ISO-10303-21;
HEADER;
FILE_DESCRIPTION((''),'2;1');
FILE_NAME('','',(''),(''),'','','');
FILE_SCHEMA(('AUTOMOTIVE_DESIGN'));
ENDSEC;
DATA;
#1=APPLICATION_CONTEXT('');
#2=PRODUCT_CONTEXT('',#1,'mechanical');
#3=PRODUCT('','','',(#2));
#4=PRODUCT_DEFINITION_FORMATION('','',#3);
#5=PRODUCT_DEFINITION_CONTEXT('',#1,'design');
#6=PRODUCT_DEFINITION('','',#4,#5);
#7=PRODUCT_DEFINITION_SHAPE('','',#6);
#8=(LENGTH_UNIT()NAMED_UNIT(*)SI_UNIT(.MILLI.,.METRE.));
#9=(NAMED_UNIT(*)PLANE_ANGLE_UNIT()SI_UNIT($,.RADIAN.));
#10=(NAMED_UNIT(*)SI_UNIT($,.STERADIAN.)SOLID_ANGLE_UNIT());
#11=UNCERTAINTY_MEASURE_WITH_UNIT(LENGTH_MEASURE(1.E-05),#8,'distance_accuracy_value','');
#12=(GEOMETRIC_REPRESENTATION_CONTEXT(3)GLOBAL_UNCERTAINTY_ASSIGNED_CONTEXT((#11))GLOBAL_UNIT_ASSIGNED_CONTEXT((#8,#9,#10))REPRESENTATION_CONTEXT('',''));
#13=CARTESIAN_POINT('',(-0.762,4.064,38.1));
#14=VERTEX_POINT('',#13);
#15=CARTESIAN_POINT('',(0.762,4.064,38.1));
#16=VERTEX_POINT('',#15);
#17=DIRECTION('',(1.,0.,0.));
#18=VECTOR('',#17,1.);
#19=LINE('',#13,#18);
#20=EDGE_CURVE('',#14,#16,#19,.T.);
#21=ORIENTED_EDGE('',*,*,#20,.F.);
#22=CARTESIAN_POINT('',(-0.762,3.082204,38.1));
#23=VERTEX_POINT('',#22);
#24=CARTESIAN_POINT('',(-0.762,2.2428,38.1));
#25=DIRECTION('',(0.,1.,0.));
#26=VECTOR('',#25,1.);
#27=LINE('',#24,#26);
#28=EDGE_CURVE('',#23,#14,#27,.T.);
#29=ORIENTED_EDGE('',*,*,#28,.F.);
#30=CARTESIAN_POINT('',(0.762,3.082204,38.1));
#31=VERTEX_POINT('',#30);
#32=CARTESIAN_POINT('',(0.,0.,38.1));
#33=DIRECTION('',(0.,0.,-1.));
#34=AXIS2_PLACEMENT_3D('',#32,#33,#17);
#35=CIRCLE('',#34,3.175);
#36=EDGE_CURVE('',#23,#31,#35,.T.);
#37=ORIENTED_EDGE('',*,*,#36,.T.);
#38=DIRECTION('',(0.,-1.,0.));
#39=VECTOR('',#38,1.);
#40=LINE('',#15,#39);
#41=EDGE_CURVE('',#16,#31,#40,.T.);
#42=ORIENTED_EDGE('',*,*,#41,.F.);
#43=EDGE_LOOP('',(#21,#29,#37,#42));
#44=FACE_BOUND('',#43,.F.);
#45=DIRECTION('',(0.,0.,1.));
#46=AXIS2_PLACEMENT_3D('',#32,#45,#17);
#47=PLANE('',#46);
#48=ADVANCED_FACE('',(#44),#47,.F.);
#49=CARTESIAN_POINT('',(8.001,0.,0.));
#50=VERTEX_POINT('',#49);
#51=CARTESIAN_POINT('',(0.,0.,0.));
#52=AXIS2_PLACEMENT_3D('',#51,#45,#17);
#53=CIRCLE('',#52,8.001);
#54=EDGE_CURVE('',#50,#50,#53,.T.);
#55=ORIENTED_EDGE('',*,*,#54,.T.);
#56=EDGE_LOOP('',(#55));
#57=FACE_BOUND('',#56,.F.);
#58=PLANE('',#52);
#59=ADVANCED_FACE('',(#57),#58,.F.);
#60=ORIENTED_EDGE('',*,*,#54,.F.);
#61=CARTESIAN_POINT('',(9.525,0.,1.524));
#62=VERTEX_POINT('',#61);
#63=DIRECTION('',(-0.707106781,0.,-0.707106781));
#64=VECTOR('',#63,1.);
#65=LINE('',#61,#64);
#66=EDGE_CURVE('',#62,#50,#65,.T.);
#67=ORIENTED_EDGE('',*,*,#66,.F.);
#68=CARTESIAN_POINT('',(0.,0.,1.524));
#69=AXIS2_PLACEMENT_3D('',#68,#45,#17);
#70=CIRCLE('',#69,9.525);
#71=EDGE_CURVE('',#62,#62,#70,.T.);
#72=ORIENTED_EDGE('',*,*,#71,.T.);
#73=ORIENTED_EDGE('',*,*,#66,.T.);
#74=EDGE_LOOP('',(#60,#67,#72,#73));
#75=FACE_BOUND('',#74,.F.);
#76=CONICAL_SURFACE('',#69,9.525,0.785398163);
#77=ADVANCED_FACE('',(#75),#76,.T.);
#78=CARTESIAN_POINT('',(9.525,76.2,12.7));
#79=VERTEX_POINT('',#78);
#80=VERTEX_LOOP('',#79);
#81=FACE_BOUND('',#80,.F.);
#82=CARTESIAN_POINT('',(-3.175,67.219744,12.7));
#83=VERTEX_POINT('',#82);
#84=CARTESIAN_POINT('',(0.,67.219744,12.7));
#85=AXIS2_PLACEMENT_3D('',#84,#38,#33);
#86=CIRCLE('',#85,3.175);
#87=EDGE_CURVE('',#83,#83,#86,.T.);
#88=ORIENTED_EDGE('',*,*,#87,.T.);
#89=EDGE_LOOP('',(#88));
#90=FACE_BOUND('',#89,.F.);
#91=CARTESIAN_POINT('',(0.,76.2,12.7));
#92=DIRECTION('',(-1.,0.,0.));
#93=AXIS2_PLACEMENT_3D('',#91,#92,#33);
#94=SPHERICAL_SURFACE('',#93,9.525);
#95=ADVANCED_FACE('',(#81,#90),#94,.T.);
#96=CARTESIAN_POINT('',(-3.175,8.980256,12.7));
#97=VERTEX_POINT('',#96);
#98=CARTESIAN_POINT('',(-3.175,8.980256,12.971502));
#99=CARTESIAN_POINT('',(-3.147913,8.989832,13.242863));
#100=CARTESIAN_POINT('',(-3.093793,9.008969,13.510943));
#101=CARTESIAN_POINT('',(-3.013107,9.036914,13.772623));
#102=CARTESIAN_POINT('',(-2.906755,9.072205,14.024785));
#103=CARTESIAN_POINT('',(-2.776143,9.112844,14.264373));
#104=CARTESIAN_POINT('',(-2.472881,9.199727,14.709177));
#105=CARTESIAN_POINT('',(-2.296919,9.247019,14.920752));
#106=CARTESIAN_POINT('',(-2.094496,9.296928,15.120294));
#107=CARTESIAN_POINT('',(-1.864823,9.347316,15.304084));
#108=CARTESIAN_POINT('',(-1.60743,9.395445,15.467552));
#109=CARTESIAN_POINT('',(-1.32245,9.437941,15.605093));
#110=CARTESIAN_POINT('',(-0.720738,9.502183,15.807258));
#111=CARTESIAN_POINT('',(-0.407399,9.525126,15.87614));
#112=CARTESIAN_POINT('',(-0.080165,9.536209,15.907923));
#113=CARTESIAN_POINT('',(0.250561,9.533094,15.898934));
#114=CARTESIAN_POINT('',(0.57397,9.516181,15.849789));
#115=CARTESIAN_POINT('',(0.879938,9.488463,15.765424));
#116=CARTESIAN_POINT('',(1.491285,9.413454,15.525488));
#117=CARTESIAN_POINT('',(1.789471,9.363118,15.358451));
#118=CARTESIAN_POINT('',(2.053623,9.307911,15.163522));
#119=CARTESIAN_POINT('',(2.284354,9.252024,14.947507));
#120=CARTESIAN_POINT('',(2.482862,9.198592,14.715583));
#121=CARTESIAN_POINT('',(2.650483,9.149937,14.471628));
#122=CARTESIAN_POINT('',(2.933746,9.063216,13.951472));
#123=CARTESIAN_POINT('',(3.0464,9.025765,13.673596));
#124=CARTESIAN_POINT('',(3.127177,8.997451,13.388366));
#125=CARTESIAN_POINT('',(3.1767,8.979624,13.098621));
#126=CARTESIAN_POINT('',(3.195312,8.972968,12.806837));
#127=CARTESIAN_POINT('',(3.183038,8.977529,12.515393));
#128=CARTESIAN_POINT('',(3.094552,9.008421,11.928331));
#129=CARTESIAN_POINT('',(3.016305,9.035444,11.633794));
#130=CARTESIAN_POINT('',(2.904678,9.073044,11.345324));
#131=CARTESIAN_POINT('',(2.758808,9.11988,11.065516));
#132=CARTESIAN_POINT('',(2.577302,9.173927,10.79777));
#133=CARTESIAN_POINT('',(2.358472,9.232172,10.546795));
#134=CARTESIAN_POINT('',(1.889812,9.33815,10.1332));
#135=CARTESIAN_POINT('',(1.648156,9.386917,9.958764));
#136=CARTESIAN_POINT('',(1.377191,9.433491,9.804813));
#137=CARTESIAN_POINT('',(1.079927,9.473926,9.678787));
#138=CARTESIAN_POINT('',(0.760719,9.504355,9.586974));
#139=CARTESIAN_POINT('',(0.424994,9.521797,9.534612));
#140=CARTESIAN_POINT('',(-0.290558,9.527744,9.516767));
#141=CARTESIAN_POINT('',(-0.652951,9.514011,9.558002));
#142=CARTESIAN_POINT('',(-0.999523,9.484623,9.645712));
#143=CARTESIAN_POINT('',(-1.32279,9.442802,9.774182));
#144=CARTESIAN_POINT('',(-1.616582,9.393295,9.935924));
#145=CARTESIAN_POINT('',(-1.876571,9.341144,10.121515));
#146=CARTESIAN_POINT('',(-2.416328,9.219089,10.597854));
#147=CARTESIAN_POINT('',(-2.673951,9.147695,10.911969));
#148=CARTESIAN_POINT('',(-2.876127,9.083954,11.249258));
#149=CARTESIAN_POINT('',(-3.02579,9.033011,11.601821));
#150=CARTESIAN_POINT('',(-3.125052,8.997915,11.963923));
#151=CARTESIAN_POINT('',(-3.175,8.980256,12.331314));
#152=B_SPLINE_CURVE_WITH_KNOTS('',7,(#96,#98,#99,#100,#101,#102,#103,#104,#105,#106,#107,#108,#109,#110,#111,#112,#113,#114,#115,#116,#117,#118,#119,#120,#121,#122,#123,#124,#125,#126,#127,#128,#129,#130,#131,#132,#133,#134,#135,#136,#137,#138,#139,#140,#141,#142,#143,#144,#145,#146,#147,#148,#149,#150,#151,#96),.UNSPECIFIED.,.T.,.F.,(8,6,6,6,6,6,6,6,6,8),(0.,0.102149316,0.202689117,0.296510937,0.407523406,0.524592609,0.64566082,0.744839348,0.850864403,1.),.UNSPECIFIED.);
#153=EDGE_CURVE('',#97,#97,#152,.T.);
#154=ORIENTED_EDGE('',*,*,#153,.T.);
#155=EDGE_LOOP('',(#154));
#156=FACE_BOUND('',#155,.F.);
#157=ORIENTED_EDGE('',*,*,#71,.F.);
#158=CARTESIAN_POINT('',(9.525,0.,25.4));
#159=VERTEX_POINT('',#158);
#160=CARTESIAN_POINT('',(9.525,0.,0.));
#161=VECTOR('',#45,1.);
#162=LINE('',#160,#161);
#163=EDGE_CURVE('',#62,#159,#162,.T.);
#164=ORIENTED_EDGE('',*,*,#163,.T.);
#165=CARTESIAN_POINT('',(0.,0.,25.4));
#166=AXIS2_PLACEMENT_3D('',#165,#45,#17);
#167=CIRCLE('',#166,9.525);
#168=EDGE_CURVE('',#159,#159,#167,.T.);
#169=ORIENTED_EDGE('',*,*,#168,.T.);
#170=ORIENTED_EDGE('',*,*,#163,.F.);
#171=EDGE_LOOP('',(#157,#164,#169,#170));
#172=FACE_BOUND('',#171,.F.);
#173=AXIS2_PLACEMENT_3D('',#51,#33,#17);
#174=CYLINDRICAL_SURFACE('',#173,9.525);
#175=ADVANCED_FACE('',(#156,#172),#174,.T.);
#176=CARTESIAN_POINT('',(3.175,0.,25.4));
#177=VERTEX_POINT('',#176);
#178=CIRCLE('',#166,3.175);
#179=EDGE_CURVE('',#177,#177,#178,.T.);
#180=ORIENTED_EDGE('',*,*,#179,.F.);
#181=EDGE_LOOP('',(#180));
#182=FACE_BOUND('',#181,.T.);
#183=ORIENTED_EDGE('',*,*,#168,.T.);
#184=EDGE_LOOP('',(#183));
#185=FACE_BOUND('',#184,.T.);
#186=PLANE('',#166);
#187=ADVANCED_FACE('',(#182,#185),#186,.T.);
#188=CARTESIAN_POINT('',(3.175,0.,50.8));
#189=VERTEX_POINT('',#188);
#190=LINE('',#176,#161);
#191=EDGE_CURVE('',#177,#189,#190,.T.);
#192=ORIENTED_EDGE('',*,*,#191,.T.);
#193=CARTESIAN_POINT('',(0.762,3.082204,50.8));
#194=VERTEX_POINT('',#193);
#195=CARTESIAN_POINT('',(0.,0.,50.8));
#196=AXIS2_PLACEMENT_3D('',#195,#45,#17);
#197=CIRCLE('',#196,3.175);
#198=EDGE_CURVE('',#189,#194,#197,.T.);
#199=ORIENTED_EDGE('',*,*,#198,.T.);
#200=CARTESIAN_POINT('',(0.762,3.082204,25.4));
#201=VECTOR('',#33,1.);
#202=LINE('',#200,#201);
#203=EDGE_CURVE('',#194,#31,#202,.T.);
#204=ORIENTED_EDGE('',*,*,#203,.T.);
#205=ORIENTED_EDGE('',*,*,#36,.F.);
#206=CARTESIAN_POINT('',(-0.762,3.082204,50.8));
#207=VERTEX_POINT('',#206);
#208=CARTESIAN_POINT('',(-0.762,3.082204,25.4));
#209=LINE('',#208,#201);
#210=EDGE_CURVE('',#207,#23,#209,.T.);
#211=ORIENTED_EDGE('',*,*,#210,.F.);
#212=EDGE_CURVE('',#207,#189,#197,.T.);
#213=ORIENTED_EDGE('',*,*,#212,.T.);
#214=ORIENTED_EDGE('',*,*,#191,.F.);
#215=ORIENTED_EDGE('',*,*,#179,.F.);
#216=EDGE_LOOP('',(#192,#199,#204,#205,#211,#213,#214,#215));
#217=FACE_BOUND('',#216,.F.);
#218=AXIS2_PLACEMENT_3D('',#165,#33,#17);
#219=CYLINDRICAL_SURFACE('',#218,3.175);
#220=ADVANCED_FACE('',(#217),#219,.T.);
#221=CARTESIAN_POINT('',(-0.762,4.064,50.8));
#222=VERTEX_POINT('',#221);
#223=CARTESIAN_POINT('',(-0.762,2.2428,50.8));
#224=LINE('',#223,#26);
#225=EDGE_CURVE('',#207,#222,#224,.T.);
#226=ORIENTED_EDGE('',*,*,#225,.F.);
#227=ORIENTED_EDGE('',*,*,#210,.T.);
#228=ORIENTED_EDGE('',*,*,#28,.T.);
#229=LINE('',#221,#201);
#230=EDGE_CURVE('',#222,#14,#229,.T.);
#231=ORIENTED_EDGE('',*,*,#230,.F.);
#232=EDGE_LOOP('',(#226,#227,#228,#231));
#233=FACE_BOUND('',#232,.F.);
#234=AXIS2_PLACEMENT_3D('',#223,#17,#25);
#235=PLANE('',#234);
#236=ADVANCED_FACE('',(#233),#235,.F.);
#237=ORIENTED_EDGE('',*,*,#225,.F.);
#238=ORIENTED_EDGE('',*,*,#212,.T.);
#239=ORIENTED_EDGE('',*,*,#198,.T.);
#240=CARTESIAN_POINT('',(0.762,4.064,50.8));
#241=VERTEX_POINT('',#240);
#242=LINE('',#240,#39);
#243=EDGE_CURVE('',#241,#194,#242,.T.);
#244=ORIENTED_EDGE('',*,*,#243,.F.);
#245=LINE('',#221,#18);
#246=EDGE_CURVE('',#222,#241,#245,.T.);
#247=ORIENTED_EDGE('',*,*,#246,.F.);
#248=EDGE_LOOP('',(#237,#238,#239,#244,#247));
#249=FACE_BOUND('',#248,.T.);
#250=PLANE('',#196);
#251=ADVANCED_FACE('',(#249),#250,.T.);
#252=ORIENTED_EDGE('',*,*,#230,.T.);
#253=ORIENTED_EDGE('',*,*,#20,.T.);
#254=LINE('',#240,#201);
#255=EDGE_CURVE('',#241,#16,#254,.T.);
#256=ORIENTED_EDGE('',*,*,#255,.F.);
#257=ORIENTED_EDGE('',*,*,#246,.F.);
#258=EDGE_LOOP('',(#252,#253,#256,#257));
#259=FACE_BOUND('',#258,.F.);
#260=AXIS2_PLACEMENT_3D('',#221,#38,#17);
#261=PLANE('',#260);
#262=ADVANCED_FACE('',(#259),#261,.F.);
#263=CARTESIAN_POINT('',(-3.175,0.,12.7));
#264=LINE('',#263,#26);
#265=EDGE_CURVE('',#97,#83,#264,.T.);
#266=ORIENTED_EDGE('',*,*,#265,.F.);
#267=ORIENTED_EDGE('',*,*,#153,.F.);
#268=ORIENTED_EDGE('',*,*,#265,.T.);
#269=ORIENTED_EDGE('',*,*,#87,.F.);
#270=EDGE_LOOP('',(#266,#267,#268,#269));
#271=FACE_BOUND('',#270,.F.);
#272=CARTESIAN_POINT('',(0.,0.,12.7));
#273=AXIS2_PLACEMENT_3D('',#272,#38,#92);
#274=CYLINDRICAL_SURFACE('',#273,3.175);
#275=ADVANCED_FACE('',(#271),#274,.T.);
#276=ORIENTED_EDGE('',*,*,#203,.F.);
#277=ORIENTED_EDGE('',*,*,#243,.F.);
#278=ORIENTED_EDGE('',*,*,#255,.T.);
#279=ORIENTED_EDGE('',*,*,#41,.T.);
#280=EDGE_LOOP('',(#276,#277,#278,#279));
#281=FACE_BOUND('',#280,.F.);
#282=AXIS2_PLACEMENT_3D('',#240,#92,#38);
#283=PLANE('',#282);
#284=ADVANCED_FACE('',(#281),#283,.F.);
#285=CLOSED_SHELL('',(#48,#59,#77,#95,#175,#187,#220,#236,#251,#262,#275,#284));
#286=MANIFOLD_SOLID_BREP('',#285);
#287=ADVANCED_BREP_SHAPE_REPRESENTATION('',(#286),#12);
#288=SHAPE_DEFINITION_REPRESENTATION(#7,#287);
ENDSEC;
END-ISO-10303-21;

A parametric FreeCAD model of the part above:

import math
import FreeCAD as App
import Part
import Sketcher
from FreeCAD import Vector
Q = App.Units.Quantity


def edges_at(feature, points):
    """Names of the edges that pass closest to the given points."""
    edges = feature.Shape.Edges
    near = lambda p: min(range(len(edges)), key=lambda i: edges[i].distToShape(Part.Vertex(*p))[0])
    return sorted({f"Edge{near(p) + 1}" for p in points})

doc = App.newDocument("Part")
body = doc.addObject("PartDesign::Body", "Body")

sketch1 = doc.addObject("Sketcher::SketchObject", "Sketch")
body.addObject(sketch1)
sketch1.AttachmentSupport = (doc.XY_Plane, [""])
sketch1.MapMode = "FlatFace"
sketch1.addGeometry(Part.Circle(Vector(0, 0, 0), Vector(0, 0, 1), 10), False)
sketch1.addConstraint(Sketcher.Constraint("Coincident", 0, 3, -1, 1))
sketch1.addConstraint(Sketcher.Constraint("Diameter", 0, Q("0.75 in")))
pad1 = doc.addObject("PartDesign::Pad", "Pad")
body.addObject(pad1)
pad1.Profile = sketch1
pad1.Length = Q("1 in")

sketch2 = doc.addObject("Sketcher::SketchObject", "Sketch001")
body.addObject(sketch2)
sketch2.AttachmentSupport = (doc.XY_Plane, [""])
sketch2.MapMode = "FlatFace"
sketch2.AttachmentOffset = App.Placement(Vector(0, 0, 1 * 25.4), App.Rotation())
sketch2.addGeometry(Part.Circle(Vector(0, 0, 0), Vector(0, 0, 1), 3.2), False)
sketch2.addConstraint(Sketcher.Constraint("Coincident", 0, 3, -1, 1))
sketch2.addConstraint(Sketcher.Constraint("Diameter", 0, Q("0.25 in")))
pad2 = doc.addObject("PartDesign::Pad", "Pad001")
body.addObject(pad2)
pad2.Profile = sketch2
pad2.Length = Q("1 in")

sketch3 = doc.addObject("Sketcher::SketchObject", "Sketch002")
body.addObject(sketch3)
sketch3.AttachmentSupport = (doc.XY_Plane, [""])
sketch3.MapMode = "FlatFace"
sketch3.AttachmentOffset = App.Placement(Vector(0, 0, 2 * 25.4), App.Rotation())
sketch3.addGeometry(Part.LineSegment(Vector(0.8, 4.1, 0), Vector(-0.8, 4.1, 0)), False)
sketch3.addGeometry(Part.LineSegment(Vector(-0.8, 4.1, 0), Vector(-0.8, 2.2, 0)), False)
sketch3.addGeometry(Part.LineSegment(Vector(-0.8, 2.2, 0), Vector(0.8, 2.2, 0)), False)
sketch3.addGeometry(Part.LineSegment(Vector(0.8, 2.2, 0), Vector(0.8, 4.1, 0)), False)
sketch3.addConstraint(Sketcher.Constraint("Coincident", 0, 2, 1, 1))
sketch3.addConstraint(Sketcher.Constraint("Coincident", 1, 2, 2, 1))
sketch3.addConstraint(Sketcher.Constraint("Coincident", 2, 2, 3, 1))
sketch3.addConstraint(Sketcher.Constraint("Coincident", 3, 2, 0, 1))
sketch3.addConstraint(Sketcher.Constraint("Horizontal", 0))
sketch3.addConstraint(Sketcher.Constraint("Vertical", 1))
sketch3.addConstraint(Sketcher.Constraint("Horizontal", 2))
sketch3.addConstraint(Sketcher.Constraint("Vertical", 3))
sketch3.addConstraint(Sketcher.Constraint("DistanceX", 0, 2, 0, 1, Q("0.06 in")))
sketch3.addConstraint(Sketcher.Constraint("DistanceX", 0, 2, -1, 1, Q("0.03 in")))
sketch3.addConstraint(Sketcher.Constraint("DistanceY", -1, 1, 0, 2, Q("0.16 in")))
sketch3.addConstraint(Sketcher.Constraint("DistanceY", 1, 2, 1, 1, Q("0.0717 in")))
pad3 = doc.addObject("PartDesign::Pad", "Pad002")
body.addObject(pad3)
pad3.Profile = sketch3
pad3.Length = Q("0.5 in")
pad3.Reversed = True

sketch4 = doc.addObject("Sketcher::SketchObject", "Sketch003")
body.addObject(sketch4)
sketch4.AttachmentSupport = (doc.XZ_Plane, [""])
sketch4.MapMode = "FlatFace"
sketch4.addGeometry(Part.Circle(Vector(0, 12.7, 0), Vector(0, 0, 1), 3.2), False)
sketch4.addConstraint(Sketcher.Constraint("PointOnObject", 0, 3, -2))
sketch4.addConstraint(Sketcher.Constraint("Diameter", 0, Q("0.25 in")))
sketch4.addConstraint(Sketcher.Constraint("DistanceY", -1, 1, 0, 3, Q("0.5 in")))
pad4 = doc.addObject("PartDesign::Pad", "Pad003")
body.addObject(pad4)
pad4.Profile = sketch4
pad4.Length = Q("3 in")
pad4.Reversed = True

sketch5 = doc.addObject("Sketcher::SketchObject", "Sketch004")
body.addObject(sketch5)
sketch5.AttachmentSupport = (doc.XZ_Plane, [""])
sketch5.MapMode = "FlatFace"
sketch5.AttachmentOffset = App.Placement(Vector(0, 0, -3 * 25.4), App.Rotation())
sketch5.addGeometry(Part.LineSegment(Vector(-10, 13, 0), Vector(10, 13, 0)), False)
sketch5.addGeometry(Part.ArcOfCircle(Part.Circle(Vector(0, 13, 0), Vector(0, 0, 1), 10), math.radians(180), math.radians(360)), False)
sketch5.addGeometry(Part.LineSegment(Vector(-10, 13, 0), Vector(10, 13, 0)), True)
sketch5.addConstraint(Sketcher.Constraint("Coincident", 0, 1, 1, 1))
sketch5.addConstraint(Sketcher.Constraint("Coincident", 1, 2, 0, 2))
sketch5.addConstraint(Sketcher.Constraint("Horizontal", 0))
sketch5.addConstraint(Sketcher.Constraint("Horizontal", 2))
sketch5.addConstraint(Sketcher.Constraint("Coincident", 2, 1, 0, 1))
sketch5.addConstraint(Sketcher.Constraint("PointOnObject", 1, 3, -2))
sketch5.addConstraint(Sketcher.Constraint("Horizontal", 1, 3, 0, 1))
sketch5.addConstraint(Sketcher.Constraint("Equal", 0, 2))
sketch5.addConstraint(Sketcher.Constraint("Radius", 1, Q("0.375 in")))
sketch5.addConstraint(Sketcher.Constraint("DistanceY", -1, 1, 1, 3, Q("0.5 in")))
revolution = doc.addObject("PartDesign::Revolution", "Revolution")
body.addObject(revolution)
revolution.Profile = sketch5
revolution.ReferenceAxis = (sketch5, ["Axis0"])
revolution.Angle = 360
doc.recompute()

chamfer = doc.addObject("PartDesign::Chamfer", "Chamfer")
body.addObject(chamfer)
chamfer.Base = (revolution, edges_at(revolution, [(-9.525, 0, 0)]))
chamfer.Size = Q("0.06 in")

doc.recompute()
